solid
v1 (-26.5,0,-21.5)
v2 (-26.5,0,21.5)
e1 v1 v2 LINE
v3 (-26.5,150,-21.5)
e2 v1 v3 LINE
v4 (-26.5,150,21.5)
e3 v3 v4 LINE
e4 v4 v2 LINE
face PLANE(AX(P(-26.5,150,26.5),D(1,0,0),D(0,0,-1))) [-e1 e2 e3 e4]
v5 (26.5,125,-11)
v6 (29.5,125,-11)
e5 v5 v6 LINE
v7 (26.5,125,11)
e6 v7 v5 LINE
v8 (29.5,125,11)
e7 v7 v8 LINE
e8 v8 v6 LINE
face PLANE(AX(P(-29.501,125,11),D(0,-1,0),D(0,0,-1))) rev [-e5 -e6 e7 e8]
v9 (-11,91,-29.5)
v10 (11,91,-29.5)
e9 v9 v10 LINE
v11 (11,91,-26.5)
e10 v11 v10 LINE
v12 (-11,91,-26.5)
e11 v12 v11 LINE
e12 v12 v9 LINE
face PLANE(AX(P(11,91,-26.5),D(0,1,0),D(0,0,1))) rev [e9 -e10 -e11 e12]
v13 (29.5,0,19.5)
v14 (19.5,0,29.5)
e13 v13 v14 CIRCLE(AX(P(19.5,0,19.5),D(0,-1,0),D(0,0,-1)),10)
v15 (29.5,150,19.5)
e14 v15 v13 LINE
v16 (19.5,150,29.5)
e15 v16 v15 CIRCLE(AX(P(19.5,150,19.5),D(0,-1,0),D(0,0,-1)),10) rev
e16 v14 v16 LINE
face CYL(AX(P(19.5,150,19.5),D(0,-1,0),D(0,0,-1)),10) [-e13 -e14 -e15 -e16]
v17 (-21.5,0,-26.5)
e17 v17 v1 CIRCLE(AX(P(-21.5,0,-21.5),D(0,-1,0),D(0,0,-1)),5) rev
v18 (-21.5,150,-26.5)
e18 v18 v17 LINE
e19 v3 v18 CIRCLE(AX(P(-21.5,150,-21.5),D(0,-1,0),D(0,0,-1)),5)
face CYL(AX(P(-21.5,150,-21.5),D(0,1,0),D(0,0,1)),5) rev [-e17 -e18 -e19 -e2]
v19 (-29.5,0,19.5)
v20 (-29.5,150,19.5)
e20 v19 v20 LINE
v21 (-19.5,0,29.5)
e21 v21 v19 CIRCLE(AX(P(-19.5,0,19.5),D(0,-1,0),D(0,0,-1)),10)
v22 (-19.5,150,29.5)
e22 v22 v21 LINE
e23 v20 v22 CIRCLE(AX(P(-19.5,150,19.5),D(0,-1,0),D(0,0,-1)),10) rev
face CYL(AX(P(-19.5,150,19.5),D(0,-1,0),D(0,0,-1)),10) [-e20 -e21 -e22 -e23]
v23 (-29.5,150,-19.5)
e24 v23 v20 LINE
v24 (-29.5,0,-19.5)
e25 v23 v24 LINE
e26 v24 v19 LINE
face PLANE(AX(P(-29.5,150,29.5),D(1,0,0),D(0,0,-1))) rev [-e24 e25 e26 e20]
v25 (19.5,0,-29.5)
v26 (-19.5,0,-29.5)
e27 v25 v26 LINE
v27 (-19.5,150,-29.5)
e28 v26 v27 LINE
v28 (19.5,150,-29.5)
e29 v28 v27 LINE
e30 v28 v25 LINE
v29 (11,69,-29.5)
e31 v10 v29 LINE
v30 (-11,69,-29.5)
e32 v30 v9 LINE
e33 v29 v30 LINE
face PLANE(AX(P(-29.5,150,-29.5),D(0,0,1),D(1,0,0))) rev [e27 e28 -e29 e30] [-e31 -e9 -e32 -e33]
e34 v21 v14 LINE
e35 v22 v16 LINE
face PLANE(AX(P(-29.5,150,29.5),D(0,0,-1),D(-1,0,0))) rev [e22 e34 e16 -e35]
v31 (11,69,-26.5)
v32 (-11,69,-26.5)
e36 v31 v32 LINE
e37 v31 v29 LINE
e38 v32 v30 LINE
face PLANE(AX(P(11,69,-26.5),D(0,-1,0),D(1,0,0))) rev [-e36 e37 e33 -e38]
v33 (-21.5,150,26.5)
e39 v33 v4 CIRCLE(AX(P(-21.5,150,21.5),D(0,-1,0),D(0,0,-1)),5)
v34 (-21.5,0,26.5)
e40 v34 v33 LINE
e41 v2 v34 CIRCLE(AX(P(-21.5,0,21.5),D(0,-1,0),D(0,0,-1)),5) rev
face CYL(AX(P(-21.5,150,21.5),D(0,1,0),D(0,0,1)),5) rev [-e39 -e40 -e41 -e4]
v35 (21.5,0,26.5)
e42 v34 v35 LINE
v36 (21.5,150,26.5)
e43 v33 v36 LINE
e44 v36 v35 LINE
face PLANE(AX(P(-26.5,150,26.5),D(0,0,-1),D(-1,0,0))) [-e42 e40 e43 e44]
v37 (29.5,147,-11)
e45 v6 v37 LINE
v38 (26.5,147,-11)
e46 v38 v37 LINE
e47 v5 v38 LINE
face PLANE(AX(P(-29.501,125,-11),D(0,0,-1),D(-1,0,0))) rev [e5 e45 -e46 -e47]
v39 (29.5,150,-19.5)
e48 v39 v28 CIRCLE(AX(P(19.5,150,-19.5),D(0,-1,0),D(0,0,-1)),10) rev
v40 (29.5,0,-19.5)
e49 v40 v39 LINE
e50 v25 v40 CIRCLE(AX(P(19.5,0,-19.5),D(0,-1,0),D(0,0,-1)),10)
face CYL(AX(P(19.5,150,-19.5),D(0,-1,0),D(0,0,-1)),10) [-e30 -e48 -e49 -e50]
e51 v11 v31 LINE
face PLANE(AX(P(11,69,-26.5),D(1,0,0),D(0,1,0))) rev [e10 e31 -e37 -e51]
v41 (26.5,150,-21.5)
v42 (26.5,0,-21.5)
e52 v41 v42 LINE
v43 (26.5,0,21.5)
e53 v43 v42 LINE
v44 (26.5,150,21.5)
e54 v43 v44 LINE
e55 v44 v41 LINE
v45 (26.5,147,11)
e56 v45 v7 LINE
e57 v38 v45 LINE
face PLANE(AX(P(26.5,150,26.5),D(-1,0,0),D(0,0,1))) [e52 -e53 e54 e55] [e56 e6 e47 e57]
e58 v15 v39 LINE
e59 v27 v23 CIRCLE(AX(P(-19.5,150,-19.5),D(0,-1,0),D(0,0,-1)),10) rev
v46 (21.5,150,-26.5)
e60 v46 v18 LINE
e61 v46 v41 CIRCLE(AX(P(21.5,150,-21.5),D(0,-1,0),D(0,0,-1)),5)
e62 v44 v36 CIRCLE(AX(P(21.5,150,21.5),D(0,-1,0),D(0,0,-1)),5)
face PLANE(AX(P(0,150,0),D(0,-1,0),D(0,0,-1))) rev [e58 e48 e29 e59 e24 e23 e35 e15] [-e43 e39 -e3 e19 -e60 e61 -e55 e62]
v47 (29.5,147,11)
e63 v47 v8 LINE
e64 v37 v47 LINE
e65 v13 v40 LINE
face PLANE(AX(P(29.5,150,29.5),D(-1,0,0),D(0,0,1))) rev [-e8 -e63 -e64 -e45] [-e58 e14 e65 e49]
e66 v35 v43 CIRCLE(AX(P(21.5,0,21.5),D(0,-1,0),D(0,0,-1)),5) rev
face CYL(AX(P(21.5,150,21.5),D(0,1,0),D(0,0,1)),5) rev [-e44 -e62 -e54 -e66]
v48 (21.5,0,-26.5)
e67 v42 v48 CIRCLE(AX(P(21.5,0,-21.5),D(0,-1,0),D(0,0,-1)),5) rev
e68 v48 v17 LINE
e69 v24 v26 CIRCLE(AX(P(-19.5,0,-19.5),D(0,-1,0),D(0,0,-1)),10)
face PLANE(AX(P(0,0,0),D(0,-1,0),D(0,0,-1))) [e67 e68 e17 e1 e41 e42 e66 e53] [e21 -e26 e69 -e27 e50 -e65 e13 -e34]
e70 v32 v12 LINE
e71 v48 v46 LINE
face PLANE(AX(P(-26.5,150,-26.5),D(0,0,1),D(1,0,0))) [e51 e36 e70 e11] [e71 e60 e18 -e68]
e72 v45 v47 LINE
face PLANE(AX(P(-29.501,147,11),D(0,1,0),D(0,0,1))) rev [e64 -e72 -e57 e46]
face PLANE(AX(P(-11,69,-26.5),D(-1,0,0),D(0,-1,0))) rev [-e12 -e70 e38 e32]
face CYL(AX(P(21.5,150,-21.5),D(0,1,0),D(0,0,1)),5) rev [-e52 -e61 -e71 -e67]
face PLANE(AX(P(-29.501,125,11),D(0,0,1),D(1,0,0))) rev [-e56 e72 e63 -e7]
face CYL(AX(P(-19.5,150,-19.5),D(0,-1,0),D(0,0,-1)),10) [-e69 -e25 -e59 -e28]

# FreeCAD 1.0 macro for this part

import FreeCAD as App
import Part
import Sketcher

V = App.Vector


def edges_at(feature, points):
    """Names of the edges that pass closest to the given points."""
    edges = feature.Shape.Edges
    near = lambda p: min(range(len(edges)), key=lambda i: edges[i].distToShape(Part.Vertex(*p))[0])
    return sorted({f"Edge{near(p) + 1}" for p in points})


def add_polygon(sketch, points):
    """Adds a closed chain of lines whose ends are joined by coincident constraints."""
    first, n = sketch.GeometryCount, len(points)
    for a, b in zip(points, points[1:] + points[:1]):
        sketch.addGeometry(Part.LineSegment(App.Vector(*a, 0), App.Vector(*b, 0)), False)
    for i in range(n):
        sketch.addConstraint(Sketcher.Constraint("Coincident", first + i, 2, first + (i + 1) % n, 1))

doc = App.newDocument("Part")
body = doc.addObject("PartDesign::Body", "Body")

# Sketch on XZ plane
sketch1 = body.newObject("Sketcher::SketchObject", "Sketch")
sketch1.AttachmentSupport = (doc.getObject("XZ_Plane"), [""])
sketch1.MapMode = "FlatFace"
add_polygon(sketch1, [(-30, -30), (-30, 30), (30, 30), (30, -30)])  # lines 0-3
add_polygon(sketch1, [(26, 26), (-26, 26), (-26, -26), (26, -26)])  # lines 4-7
sketch1.addConstraint(Sketcher.Constraint("Vertical", 0))
sketch1.addConstraint(Sketcher.Constraint("Horizontal", 1))
sketch1.addConstraint(Sketcher.Constraint("Vertical", 2))
sketch1.addConstraint(Sketcher.Constraint("Horizontal", 3))
sketch1.addConstraint(Sketcher.Constraint("Horizontal", 4))
sketch1.addConstraint(Sketcher.Constraint("Vertical", 5))
sketch1.addConstraint(Sketcher.Constraint("Horizontal", 6))
sketch1.addConstraint(Sketcher.Constraint("Vertical", 7))
sketch1.addConstraint(Sketcher.Constraint("Symmetric", 0, 2, 2, 2, -1, 1))
sketch1.addConstraint(Sketcher.Constraint("Symmetric", 4, 2, 6, 2, -1, 1))
sketch1.addConstraint(Sketcher.Constraint("Equal", 3, 0))
sketch1.addConstraint(Sketcher.Constraint("Equal", 6, 5))
sketch1.addConstraint(Sketcher.Constraint("DistanceX", 1, 1, 1, 2, 59.0))
sketch1.addConstraint(Sketcher.Constraint("DistanceX", 4, 2, 4, 1, 53.0))
pad1 = body.newObject("PartDesign::Pad", "Pad")
pad1.Profile = sketch1
pad1.Length = 150
pad1.Reversed = True
doc.recompute()

fillet = body.newObject("PartDesign::Fillet", "Fillet")
fillet.Base = (pad1, edges_at(pad1, [
    (29.5, 75, 29.5),
    (-29.5, 75, 29.5),
    (-29.5, 75, -29.5),
    (29.5, 75, -29.5),
]))
fillet.Radius = 10
doc.recompute()

fillet2 = body.newObject("PartDesign::Fillet", "Fillet001")
fillet2.Base = (fillet, edges_at(fillet, [
    (26.5, 75, 26.5),
    (26.5, 75, -26.5),
    (-26.5, 75, -26.5),
    (-26.5, 75, 26.5),
]))
fillet2.Radius = 5

# Sketch on XY plane
sketch2 = body.newObject("Sketcher::SketchObject", "Sketch001")
sketch2.AttachmentSupport = (doc.getObject("XY_Plane"), [""])
sketch2.MapMode = "FlatFace"
sketch2.AttachmentOffset = App.Placement(V(0, 0, -29.5), App.Rotation())
add_polygon(sketch2, [(11, 91), (11, 69), (-11, 69), (-11, 91)])  # lines 0-3
sketch2.addConstraint(Sketcher.Constraint("Vertical", 0))
sketch2.addConstraint(Sketcher.Constraint("Horizontal", 1))
sketch2.addConstraint(Sketcher.Constraint("Vertical", 2))
sketch2.addConstraint(Sketcher.Constraint("Horizontal", 3))
sketch2.addConstraint(Sketcher.Constraint("Equal", 3, 0))
sketch2.addConstraint(Sketcher.Constraint("DistanceX", 1, 2, 1, 1, 22.0))
sketch2.addConstraint(Sketcher.Constraint("DistanceX", -1, 1, 0, 2, 11.0))
sketch2.addConstraint(Sketcher.Constraint("DistanceY", -1, 1, 0, 2, 69.0))
pocket1 = body.newObject("PartDesign::Pocket", "Pocket")
pocket1.Profile = sketch2
pocket1.Length = 3
pocket1.Reversed = True

# Sketch on YZ plane
sketch3 = body.newObject("Sketcher::SketchObject", "Sketch002")
sketch3.AttachmentSupport = (doc.getObject("YZ_Plane"), [""])
sketch3.MapMode = "FlatFace"
sketch3.AttachmentOffset = App.Placement(V(0, 0, 29.5), App.Rotation())
add_polygon(sketch3, [(147, 11), (125, 11), (125, -11), (147, -11)])  # lines 0-3
sketch3.addConstraint(Sketcher.Constraint("Horizontal", 0))
sketch3.addConstraint(Sketcher.Constraint("Vertical", 1))
sketch3.addConstraint(Sketcher.Constraint("Horizontal", 2))
sketch3.addConstraint(Sketcher.Constraint("Vertical", 3))
sketch3.addConstraint(Sketcher.Constraint("Equal", 2, 1))
sketch3.addConstraint(Sketcher.Constraint("DistanceX", 0, 2, 0, 1, 22.0))
sketch3.addConstraint(Sketcher.Constraint("DistanceX", -1, 1, 0, 2, 125.0))
sketch3.addConstraint(Sketcher.Constraint("DistanceY", -1, 1, 0, 2, 11.0))
pocket2 = body.newObject("PartDesign::Pocket", "Pocket001")
pocket2.Profile = sketch3
pocket2.Type = "UpToFirst"

doc.recompute()
